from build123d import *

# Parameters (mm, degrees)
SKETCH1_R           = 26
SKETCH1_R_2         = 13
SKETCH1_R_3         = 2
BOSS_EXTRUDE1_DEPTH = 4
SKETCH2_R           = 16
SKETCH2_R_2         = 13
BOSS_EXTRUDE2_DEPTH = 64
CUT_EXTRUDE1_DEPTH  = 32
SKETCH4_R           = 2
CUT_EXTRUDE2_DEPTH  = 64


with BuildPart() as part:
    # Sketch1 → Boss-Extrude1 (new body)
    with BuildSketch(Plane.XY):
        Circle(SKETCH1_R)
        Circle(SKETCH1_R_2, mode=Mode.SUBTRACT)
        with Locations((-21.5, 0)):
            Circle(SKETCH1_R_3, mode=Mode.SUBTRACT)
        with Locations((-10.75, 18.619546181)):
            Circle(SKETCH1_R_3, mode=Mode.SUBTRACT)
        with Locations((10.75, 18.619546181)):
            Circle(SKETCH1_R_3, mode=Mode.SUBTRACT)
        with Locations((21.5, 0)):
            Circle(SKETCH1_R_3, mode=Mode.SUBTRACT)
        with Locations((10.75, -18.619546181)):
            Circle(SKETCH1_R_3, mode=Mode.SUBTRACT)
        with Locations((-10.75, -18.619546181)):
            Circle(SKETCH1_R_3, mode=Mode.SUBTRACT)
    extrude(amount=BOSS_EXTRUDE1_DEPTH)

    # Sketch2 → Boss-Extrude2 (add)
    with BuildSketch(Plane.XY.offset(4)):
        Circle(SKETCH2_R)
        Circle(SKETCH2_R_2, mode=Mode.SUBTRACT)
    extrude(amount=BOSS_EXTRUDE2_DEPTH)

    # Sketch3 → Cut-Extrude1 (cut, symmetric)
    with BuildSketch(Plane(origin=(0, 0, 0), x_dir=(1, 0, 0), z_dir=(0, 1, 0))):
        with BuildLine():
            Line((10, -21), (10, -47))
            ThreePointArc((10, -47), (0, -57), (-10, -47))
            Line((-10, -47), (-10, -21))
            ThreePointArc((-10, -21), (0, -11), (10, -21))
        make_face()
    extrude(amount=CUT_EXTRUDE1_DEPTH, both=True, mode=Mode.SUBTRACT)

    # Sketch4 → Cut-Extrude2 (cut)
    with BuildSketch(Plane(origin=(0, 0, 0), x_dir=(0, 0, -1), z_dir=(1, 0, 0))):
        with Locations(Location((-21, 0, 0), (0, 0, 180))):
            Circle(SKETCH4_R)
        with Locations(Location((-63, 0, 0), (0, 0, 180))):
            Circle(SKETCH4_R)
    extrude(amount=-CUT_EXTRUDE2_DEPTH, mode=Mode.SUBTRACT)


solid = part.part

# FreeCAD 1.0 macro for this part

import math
import FreeCAD as App
import Part
import Sketcher

V = App.Vector

doc = App.newDocument("Part")
body = doc.addObject("PartDesign::Body", "Body")

# Sketch on XY plane
sketch1 = body.newObject("Sketcher::SketchObject", "Sketch")
sketch1.AttachmentSupport = (doc.getObject("XY_Plane"), [""])
sketch1.MapMode = "FlatFace"
sketch1.addGeometry([
    Part.Circle(V(0, 0, 0), V(0, 0, 1), 26),  # 0
    Part.Circle(V(-10.8, -18.6, 0), V(0, 0, 1), 2),  # 1
    Part.Circle(V(10.8, -18.6, 0), V(0, 0, 1), 2),  # 2
    Part.Circle(V(-21.5, 0, 0), V(0, 0, 1), 2),  # 3
    Part.Circle(V(-10.8, 18.6, 0), V(0, 0, 1), 2),  # 4
    Part.Circle(V(0, 0, 0), V(0, 0, 1), 13),  # 5
    Part.Circle(V(21.5, 0, 0), V(0, 0, 1), 2),  # 6
    Part.Circle(V(10.8, 18.6, 0), V(0, 0, 1), 2),  # 7
], False)
sketch1.addConstraint([
    Sketcher.Constraint("Coincident", 0, 3, -1, 1),
    Sketcher.Constraint("Coincident", 5, 3, -1, 1),
    Sketcher.Constraint("Equal", 1, 2),
    Sketcher.Constraint("Equal", 2, 3),
    Sketcher.Constraint("Equal", 3, 4),
    Sketcher.Constraint("Equal", 4, 6),
    Sketcher.Constraint("Equal", 6, 7),
    Sketcher.Constraint("Symmetric", 2, 3, 4, 3, -1, 1),
    Sketcher.Constraint("Symmetric", 3, 3, 6, 3, -1, 1),
    Sketcher.Constraint("Symmetric", 1, 3, 7, 3, -1, 1),
    Sketcher.Constraint("Symmetric", 1, 3, 2, 3, -2),
    Sketcher.Constraint("PointOnObject", 3, 3, -1),
    Sketcher.Constraint("Diameter", 0, 52.0),
    Sketcher.Constraint("Diameter", 1, 4.0),
    Sketcher.Constraint("Diameter", 5, 26.0),
    Sketcher.Constraint("DistanceX", 3, 3, -1, 1, 21.5),
    Sketcher.Constraint("DistanceX", 1, 3, 2, 3, 21.5),
    Sketcher.Constraint("DistanceY", 1, 3, -1, 1, 18.619546),
])
pad1 = body.newObject("PartDesign::Pad", "Pad")
pad1.Profile = sketch1
pad1.Length = 4

# Sketch on XY plane
sketch2 = body.newObject("Sketcher::SketchObject", "Sketch001")
sketch2.AttachmentSupport = (doc.getObject("XY_Plane"), [""])
sketch2.MapMode = "FlatFace"
sketch2.AttachmentOffset = App.Placement(V(0, 0, 4), App.Rotation())
sketch2.addGeometry([
    Part.Circle(V(0, 0, 0), V(0, 0, 1), 16),
    Part.Circle(V(0, 0, 0), V(0, 0, 1), 13),
], False)
sketch2.addConstraint([
    Sketcher.Constraint("Coincident", 0, 3, -1, 1),
    Sketcher.Constraint("Coincident", 1, 3, -1, 1),
    Sketcher.Constraint("Diameter", 0, 32.0),
    Sketcher.Constraint("Diameter", 1, 26.0),
])
pad2 = body.newObject("PartDesign::Pad", "Pad001")
pad2.Profile = sketch2
pad2.Length = 64

# Sketch on XZ plane
sketch3 = body.newObject("Sketcher::SketchObject", "Sketch002")
sketch3.AttachmentSupport = (doc.getObject("XZ_Plane"), [""])
sketch3.MapMode = "FlatFace"
sketch3.addGeometry([
    Part.LineSegment(V(10, 47, 0), V(10, 21, 0)),
    Part.ArcOfCircle(Part.Circle(V(0, 21, 0), V(0, 0, 1), 10), math.radians(180), math.radians(360)),
    Part.LineSegment(V(-10, 21, 0), V(-10, 47, 0)),
    Part.ArcOfCircle(Part.Circle(V(0, 47, 0), V(0, 0, 1), 10), math.radians(0), math.radians(180)),
], False)
sketch3.addConstraint([
    Sketcher.Constraint("Tangent", 0, 2, 1, 2),
    Sketcher.Constraint("Tangent", 1, 1, 2, 1),
    Sketcher.Constraint("Tangent", 2, 2, 3, 2),
    Sketcher.Constraint("Tangent", 3, 1, 0, 1),
    Sketcher.Constraint("Vertical", 0),
    Sketcher.Constraint("Vertical", 2),
    Sketcher.Constraint("PointOnObject", 1, 3, -2),
    Sketcher.Constraint("Radius", 1, 10.0),
    Sketcher.Constraint("DistanceY", 0, 2, 0, 1, 26.0),
    Sketcher.Constraint("DistanceY", -1, 1, 1, 3, 21.0),
])
pocket1 = body.newObject("PartDesign::Pocket", "Pocket")
pocket1.Profile = sketch3
pocket1.Length = 64
pocket1.Midplane = True

# Sketch on YZ plane
sketch4 = body.newObject("Sketcher::SketchObject", "Sketch003")
sketch4.AttachmentSupport = (doc.getObject("YZ_Plane"), [""])
sketch4.MapMode = "FlatFace"
sketch4.addGeometry([
    Part.Circle(V(0, 21, 0), V(0, 0, 1), 2),
    Part.Circle(V(0, 63, 0), V(0, 0, 1), 2),
], False)
sketch4.addConstraint([
    Sketcher.Constraint("Equal", 0, 1),
    Sketcher.Constraint("PointOnObject", 0, 3, -2),
    Sketcher.Constraint("PointOnObject", 1, 3, -2),
    Sketcher.Constraint("Diameter", 0, 4.0),
    Sketcher.Constraint("DistanceY", -1, 1, 0, 3, 21.0),
    Sketcher.Constraint("DistanceY", -1, 1, 1, 3, 63.0),
])
pocket2 = body.newObject("PartDesign::Pocket", "Pocket001")
pocket2.Profile = sketch4
pocket2.Length = 64

doc.recompute()
